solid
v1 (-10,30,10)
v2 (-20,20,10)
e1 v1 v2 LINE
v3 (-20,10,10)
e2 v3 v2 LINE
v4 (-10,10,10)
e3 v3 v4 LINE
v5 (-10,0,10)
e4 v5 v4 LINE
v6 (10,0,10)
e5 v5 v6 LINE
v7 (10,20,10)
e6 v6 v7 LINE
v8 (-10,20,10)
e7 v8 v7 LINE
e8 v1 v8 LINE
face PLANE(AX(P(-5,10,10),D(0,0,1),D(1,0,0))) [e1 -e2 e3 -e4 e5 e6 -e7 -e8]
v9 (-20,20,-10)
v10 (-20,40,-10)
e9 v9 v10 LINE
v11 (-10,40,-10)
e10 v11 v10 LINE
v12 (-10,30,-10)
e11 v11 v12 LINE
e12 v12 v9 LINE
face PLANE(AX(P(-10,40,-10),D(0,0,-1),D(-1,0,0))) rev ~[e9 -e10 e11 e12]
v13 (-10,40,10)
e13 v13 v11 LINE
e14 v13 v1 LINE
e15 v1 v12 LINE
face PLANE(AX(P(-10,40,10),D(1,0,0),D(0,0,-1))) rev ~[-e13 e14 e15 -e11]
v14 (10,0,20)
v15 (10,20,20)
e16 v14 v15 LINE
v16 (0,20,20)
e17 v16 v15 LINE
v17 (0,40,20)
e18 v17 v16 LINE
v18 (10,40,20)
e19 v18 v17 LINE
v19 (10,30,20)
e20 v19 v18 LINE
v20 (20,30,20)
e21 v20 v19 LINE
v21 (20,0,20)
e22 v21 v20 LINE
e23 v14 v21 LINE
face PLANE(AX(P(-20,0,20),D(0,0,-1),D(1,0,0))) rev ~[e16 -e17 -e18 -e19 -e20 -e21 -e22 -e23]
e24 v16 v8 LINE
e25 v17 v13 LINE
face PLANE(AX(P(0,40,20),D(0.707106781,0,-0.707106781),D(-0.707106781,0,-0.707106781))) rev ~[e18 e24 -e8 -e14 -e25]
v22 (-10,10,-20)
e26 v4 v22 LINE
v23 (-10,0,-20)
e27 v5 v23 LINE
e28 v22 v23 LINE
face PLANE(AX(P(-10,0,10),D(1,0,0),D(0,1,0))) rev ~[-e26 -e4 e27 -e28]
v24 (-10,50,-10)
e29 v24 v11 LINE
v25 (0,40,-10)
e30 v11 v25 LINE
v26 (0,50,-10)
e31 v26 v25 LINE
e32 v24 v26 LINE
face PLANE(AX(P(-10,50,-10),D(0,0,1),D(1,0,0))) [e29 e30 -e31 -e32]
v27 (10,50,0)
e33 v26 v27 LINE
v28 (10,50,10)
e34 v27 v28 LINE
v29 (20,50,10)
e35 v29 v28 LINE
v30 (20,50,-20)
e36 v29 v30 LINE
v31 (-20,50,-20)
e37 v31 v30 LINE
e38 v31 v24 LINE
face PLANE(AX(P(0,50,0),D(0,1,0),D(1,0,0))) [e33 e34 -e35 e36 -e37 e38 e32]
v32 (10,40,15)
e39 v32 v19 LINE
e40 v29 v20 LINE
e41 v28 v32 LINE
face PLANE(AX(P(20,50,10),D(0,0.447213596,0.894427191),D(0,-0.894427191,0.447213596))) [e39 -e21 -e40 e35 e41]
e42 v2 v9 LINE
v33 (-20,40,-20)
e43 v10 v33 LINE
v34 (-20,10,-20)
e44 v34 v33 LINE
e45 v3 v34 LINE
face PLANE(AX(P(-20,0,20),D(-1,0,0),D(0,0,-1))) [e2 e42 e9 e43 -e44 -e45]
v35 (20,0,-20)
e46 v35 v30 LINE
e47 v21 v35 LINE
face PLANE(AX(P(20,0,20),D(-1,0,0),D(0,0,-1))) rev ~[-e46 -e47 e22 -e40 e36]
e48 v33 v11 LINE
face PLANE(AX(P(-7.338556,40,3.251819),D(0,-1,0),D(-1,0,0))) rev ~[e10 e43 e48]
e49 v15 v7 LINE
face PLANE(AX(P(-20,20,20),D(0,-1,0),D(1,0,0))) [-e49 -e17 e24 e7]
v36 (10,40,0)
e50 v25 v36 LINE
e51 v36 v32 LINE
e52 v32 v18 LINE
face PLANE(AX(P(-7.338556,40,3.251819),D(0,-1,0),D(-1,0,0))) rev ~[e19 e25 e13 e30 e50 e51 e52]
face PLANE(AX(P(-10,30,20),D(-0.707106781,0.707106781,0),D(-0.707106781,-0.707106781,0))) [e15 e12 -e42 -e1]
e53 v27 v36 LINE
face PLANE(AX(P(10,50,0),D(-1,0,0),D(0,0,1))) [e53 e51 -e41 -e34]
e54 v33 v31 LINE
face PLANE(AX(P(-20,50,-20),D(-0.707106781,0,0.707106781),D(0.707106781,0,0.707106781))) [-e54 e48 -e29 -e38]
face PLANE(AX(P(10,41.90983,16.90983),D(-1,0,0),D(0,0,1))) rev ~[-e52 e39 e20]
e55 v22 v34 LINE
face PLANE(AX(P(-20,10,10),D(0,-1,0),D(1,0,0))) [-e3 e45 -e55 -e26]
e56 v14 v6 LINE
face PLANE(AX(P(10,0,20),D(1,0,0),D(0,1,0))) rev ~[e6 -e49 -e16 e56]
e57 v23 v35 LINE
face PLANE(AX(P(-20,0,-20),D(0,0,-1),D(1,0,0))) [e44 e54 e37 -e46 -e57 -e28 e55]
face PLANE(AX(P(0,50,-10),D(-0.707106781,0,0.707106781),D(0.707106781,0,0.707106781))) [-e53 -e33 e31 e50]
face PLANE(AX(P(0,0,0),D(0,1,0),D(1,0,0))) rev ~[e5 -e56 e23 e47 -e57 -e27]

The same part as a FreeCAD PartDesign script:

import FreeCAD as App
import Part
import Sketcher
from FreeCAD import Vector


def add_polygon(sketch, points):
    """Adds a closed chain of lines whose ends are joined by coincident constraints."""
    first, n = sketch.GeometryCount, len(points)
    for a, b in zip(points, points[1:] + points[:1]):
        sketch.addGeometry(Part.LineSegment(App.Vector(*a, 0), App.Vector(*b, 0)), False)
    for i in range(n):
        sketch.addConstraint(Sketcher.Constraint("Coincident", first + i, 2, first + (i + 1) % n, 1))

doc = App.newDocument("Part")
body = doc.addObject("PartDesign::Body", "Body")

sketch1 = body.newObject("Sketcher::SketchObject", "Sketch")
sketch1.AttachmentSupport = (doc.getObject("XZ_Plane"), [""])
sketch1.MapMode = "FlatFace"
add_polygon(sketch1, [(-20, -20), (-20, 20), (20, 20), (20, -20)])
sketch1.addConstraint(Sketcher.Constraint("Vertical", 0))
sketch1.addConstraint(Sketcher.Constraint("Horizontal", 1))
sketch1.addConstraint(Sketcher.Constraint("Vertical", 2))
sketch1.addConstraint(Sketcher.Constraint("Horizontal", 3))
sketch1.addConstraint(Sketcher.Constraint("Symmetric", 0, 2, 2, 2, -1, 1))
sketch1.addConstraint(Sketcher.Constraint("Equal", 3, 0))
sketch1.addConstraint(Sketcher.Constraint("DistanceX", 1, 1, 1, 2, 40.0))
pad1 = body.newObject("PartDesign::Pad", "Pad")
pad1.Profile = sketch1
pad1.Length = 50
pad1.Reversed = True

sketch2 = body.newObject("Sketcher::SketchObject", "Sketch001")
sketch2.AttachmentSupport = (doc.getObject("XZ_Plane"), [""])
sketch2.MapMode = "FlatFace"
sketch2.AttachmentOffset = App.Placement(Vector(0, 0, -50), App.Rotation())
add_polygon(sketch2, [(-10, -10), (-20, -20), (-20, 20), (10, 20), (10, 0), (0, -10)])
sketch2.addConstraint(Sketcher.Constraint("Vertical", 1))
sketch2.addConstraint(Sketcher.Constraint("Horizontal", 2))
sketch2.addConstraint(Sketcher.Constraint("Vertical", 3))
sketch2.addConstraint(Sketcher.Constraint("Horizontal", 5))
sketch2.addConstraint(Sketcher.Constraint("PointOnObject", 3, 2, -1))
sketch2.addConstraint(Sketcher.Constraint("PointOnObject", 4, 2, -2))
sketch2.addConstraint(Sketcher.Constraint("Parallel", 0, 4))
sketch2.addConstraint(Sketcher.Constraint("Equal", 0, 4))
sketch2.addConstraint(Sketcher.Constraint("DistanceX", 2, 1, 2, 2, 30.0))
sketch2.addConstraint(Sketcher.Constraint("DistanceX", 5, 2, 5, 1, 10.0))
sketch2.addConstraint(Sketcher.Constraint("DistanceY", 1, 1, 1, 2, 40.0))
sketch2.addConstraint(Sketcher.Constraint("DistanceY", 3, 2, 3, 1, 20.0))
pocket1 = body.newObject("PartDesign::Pocket", "Pocket")
pocket1.Profile = sketch2
pocket1.Length = 10
pocket1.Reversed = True

sketch3 = body.newObject("Sketcher::SketchObject", "Sketch002")
sketch3.AttachmentSupport = (doc.getObject("YZ_Plane"), [""])
sketch3.MapMode = "FlatFace"
sketch3.AttachmentOffset = App.Placement(Vector(0, 0, 20), App.Rotation())
add_polygon(sketch3, [(50, 10), (50, 20), (30, 20)])
sketch3.addConstraint(Sketcher.Constraint("Vertical", 0))
sketch3.addConstraint(Sketcher.Constraint("Horizontal", 1))
sketch3.addConstraint(Sketcher.Constraint("DistanceX", 1, 2, 1, 1, 20.0))
sketch3.addConstraint(Sketcher.Constraint("DistanceY", 0, 1, 0, 2, 10.0))
sketch3.addConstraint(Sketcher.Constraint("DistanceX", -1, 1, 0, 2, 50.0))
sketch3.addConstraint(Sketcher.Constraint("DistanceY", -1, 1, 0, 2, 20.0))
pocket2 = body.newObject("PartDesign::Pocket", "Pocket001")
pocket2.Profile = sketch3
pocket2.Length = 10

sketch4 = body.newObject("Sketcher::SketchObject", "Sketch003")
sketch4.AttachmentSupport = (doc.getObject("XZ_Plane"), [""])
sketch4.MapMode = "FlatFace"
sketch4.AttachmentOffset = App.Placement(Vector(0, 0, -40), App.Rotation())
add_polygon(sketch4, [(0, 20), (-10, 10), (-10, -10), (-20, -10), (-20, 20)])
sketch4.addConstraint(Sketcher.Constraint("Vertical", 1))
sketch4.addConstraint(Sketcher.Constraint("Horizontal", 2))
sketch4.addConstraint(Sketcher.Constraint("Vertical", 3))
sketch4.addConstraint(Sketcher.Constraint("Horizontal", 4))
sketch4.addConstraint(Sketcher.Constraint("PointOnObject", 4, 2, -2))
sketch4.addConstraint(Sketcher.Constraint("Equal", 4, 1))
sketch4.addConstraint(Sketcher.Constraint("DistanceX", 2, 2, 2, 1, 10.0))
sketch4.addConstraint(Sketcher.Constraint("DistanceX", 4, 1, 4, 2, 20.0))
sketch4.addConstraint(Sketcher.Constraint("DistanceY", 3, 1, 3, 2, 30.0))
sketch4.addConstraint(Sketcher.Constraint("DistanceY", -1, 1, 0, 2, 10.0))
pocket3 = body.newObject("PartDesign::Pocket", "Pocket002")
pocket3.Profile = sketch4
pocket3.Length = 10
pocket3.Reversed = True

sketch5 = body.newObject("Sketcher::SketchObject", "Sketch004")
sketch5.AttachmentSupport = (doc.getObject("XY_Plane"), [""])
sketch5.MapMode = "FlatFace"
sketch5.AttachmentOffset = App.Placement(Vector(0, 0, 20), App.Rotation())
add_polygon(sketch5, [(-20, 20), (-10, 30), (-20, 30)])
sketch5.addConstraint(Sketcher.Constraint("Horizontal", 1))
sketch5.addConstraint(Sketcher.Constraint("Vertical", 2))
sketch5.addConstraint(Sketcher.Constraint("Equal", 1, 2))
sketch5.addConstraint(Sketcher.Constraint("DistanceX", 1, 2, 1, 1, 10.0))
sketch5.addConstraint(Sketcher.Constraint("DistanceX", 0, 2, -1, 1, 10.0))
sketch5.addConstraint(Sketcher.Constraint("DistanceY", -1, 1, 0, 2, 30.0))
pocket4 = body.newObject("PartDesign::Pocket", "Pocket003")
pocket4.Profile = sketch5
pocket4.Length = 30

sketch6 = body.newObject("Sketcher::SketchObject", "Sketch005")
sketch6.AttachmentSupport = (doc.getObject("XZ_Plane"), [""])
sketch6.MapMode = "FlatFace"
sketch6.AttachmentOffset = App.Placement(Vector(0, 0, -30), App.Rotation())
add_polygon(sketch6, [(0, 20), (-10, 10), (-10, 20)])
sketch6.addConstraint(Sketcher.Constraint("Vertical", 1))
sketch6.addConstraint(Sketcher.Constraint("Horizontal", 2))
sketch6.addConstraint(Sketcher.Constraint("PointOnObject", 2, 2, -2))
sketch6.addConstraint(Sketcher.Constraint("Equal", 2, 1))
sketch6.addConstraint(Sketcher.Constraint("DistanceX", 2, 1, 2, 2, 10.0))
sketch6.addConstraint(Sketcher.Constraint("DistanceY", -1, 1, 0, 2, 10.0))
pocket5 = body.newObject("PartDesign::Pocket", "Pocket004")
pocket5.Profile = sketch6
pocket5.Length = 10
pocket5.Reversed = True

sketch7 = body.newObject("Sketcher::SketchObject", "Sketch006")
sketch7.AttachmentSupport = (doc.getObject("YZ_Plane"), [""])
sketch7.MapMode = "FlatFace"
sketch7.AttachmentOffset = App.Placement(Vector(0, 0, -10), App.Rotation())
add_polygon(sketch7, [(30, 20), (20, 20), (20, 10), (30, 10)])
sketch7.addConstraint(Sketcher.Constraint("Horizontal", 0))
sketch7.addConstraint(Sketcher.Constraint("Vertical", 1))
sketch7.addConstraint(Sketcher.Constraint("Horizontal", 2))
sketch7.addConstraint(Sketcher.Constraint("Vertical", 3))
sketch7.addConstraint(Sketcher.Constraint("Equal", 2, 1))
sketch7.addConstraint(Sketcher.Constraint("DistanceX", 0, 2, 0, 1, 10.0))
sketch7.addConstraint(Sketcher.Constraint("DistanceX", -1, 1, 0, 2, 20.0))
sketch7.addConstraint(Sketcher.Constraint("DistanceY", -1, 1, 0, 2, 20.0))
pocket6 = body.newObject("PartDesign::Pocket", "Pocket005")
pocket6.Profile = sketch7
pocket6.Length = 10

sketch8 = body.newObject("Sketcher::SketchObject", "Sketch007")
sketch8.AttachmentSupport = (doc.getObject("XY_Plane"), [""])
sketch8.MapMode = "FlatFace"
sketch8.AttachmentOffset = App.Placement(Vector(0, 0, 20), App.Rotation())
add_polygon(sketch8, [(-20, 20), (-20, 0), (10, 0), (10, 20)])
sketch8.addConstraint(Sketcher.Constraint("Vertical", 0))
sketch8.addConstraint(Sketcher.Constraint("Horizontal", 1))
sketch8.addConstraint(Sketcher.Constraint("Vertical", 2))
sketch8.addConstraint(Sketcher.Constraint("Horizontal", 3))
sketch8.addConstraint(Sketcher.Constraint("PointOnObject", 0, 2, -1))
sketch8.addConstraint(Sketcher.Constraint("DistanceX", 1, 1, 1, 2, 30.0))
sketch8.addConstraint(Sketcher.Constraint("DistanceY", 0, 2, 0, 1, 20.0))
sketch8.addConstraint(Sketcher.Constraint("DistanceX", 0, 2, -1, 1, 20.0))
pocket7 = body.newObject("PartDesign::Pocket", "Pocket006")
pocket7.Profile = sketch8
pocket7.Length = 10

sketch9 = body.newObject("Sketcher::SketchObject", "Sketch008")
sketch9.AttachmentSupport = (doc.getObject("XY_Plane"), [""])
sketch9.MapMode = "FlatFace"
sketch9.AttachmentOffset = App.Placement(Vector(0, 0, 10), App.Rotation())
add_polygon(sketch9, [(-20, 10), (-20, 0), (-10, 0), (-10, 10)])
sketch9.addConstraint(Sketcher.Constraint("Vertical", 0))
sketch9.addConstraint(Sketcher.Constraint("Horizontal", 1))
sketch9.addConstraint(Sketcher.Constraint("Vertical", 2))
sketch9.addConstraint(Sketcher.Constraint("Horizontal", 3))
sketch9.addConstraint(Sketcher.Constraint("PointOnObject", 0, 2, -1))
sketch9.addConstraint(Sketcher.Constraint("Equal", 3, 0))
sketch9.addConstraint(Sketcher.Constraint("DistanceX", 1, 1, 1, 2, 10.0))
sketch9.addConstraint(Sketcher.Constraint("DistanceX", 0, 2, -1, 1, 20.0))
pocket8 = body.newObject("PartDesign::Pocket", "Pocket007")
pocket8.Profile = sketch9
pocket8.Type = "ThroughAll"

doc.recompute()
